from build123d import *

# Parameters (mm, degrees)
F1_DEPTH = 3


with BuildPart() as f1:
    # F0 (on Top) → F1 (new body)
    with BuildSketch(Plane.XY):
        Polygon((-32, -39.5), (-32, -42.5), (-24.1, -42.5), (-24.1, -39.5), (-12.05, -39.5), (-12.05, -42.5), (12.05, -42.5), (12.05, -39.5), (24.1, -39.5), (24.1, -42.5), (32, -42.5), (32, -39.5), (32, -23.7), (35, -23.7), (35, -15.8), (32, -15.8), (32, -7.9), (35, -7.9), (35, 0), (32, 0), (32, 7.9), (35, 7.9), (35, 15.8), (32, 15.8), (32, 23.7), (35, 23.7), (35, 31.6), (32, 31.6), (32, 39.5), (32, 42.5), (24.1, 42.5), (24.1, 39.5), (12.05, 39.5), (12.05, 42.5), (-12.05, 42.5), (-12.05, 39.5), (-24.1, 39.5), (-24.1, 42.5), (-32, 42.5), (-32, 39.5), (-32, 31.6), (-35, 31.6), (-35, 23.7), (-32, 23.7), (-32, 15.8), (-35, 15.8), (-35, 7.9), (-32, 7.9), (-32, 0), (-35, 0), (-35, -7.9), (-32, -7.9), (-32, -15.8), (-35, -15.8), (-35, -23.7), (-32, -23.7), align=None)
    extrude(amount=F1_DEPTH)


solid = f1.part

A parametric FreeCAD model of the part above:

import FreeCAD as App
import Part
import Sketcher

V = App.Vector
Q = App.Units.Quantity

doc = App.newDocument("Part")
body = doc.addObject("PartDesign::Body", "Body")

# Sketch on XY plane
sketch1 = doc.addObject("Sketcher::SketchObject", "Sketch")
body.addObject(sketch1)
sketch1.AttachmentSupport = (doc.XY_Plane, [""])
sketch1.MapMode = "FlatFace"
sketch1.addGeometry([
    Part.LineSegment(V(-32, -42.5, 0), V(-24.1, -42.5, 0)),  # 0
    Part.LineSegment(V(-24.1, -42.5, 0), V(-24.1, -39.5, 0)),  # 1
    Part.LineSegment(V(-24.1, -39.5, 0), V(-12.05, -39.5, 0)),  # 2
    Part.LineSegment(V(-12.05, -39.5, 0), V(-12.05, -42.5, 0)),  # 3
    Part.LineSegment(V(-12.05, -42.5, 0), V(12.05, -42.5, 0)),  # 4
    Part.LineSegment(V(12.05, -42.5, 0), V(12.05, -39.5, 0)),  # 5
    Part.LineSegment(V(12.05, -39.5, 0), V(24.1, -39.5, 0)),  # 6
    Part.LineSegment(V(24.1, -39.5, 0), V(24.1, -42.5, 0)),  # 7
    Part.LineSegment(V(24.1, -42.5, 0), V(32, -42.5, 0)),  # 8
    Part.LineSegment(V(32, -42.5, 0), V(32, -23.7, 0)),  # 9
    Part.LineSegment(V(32, -23.7, 0), V(35, -23.7, 0)),  # 10
    Part.LineSegment(V(35, -23.7, 0), V(35, -15.8, 0)),  # 11
    Part.LineSegment(V(35, -15.8, 0), V(32, -15.8, 0)),  # 12
    Part.LineSegment(V(32, -15.8, 0), V(32, -7.9, 0)),  # 13
    Part.LineSegment(V(32, -7.9, 0), V(35, -7.9, 0)),  # 14
    Part.LineSegment(V(35, -7.9, 0), V(35, 0, 0)),  # 15
    Part.LineSegment(V(35, 0, 0), V(32, 0, 0)),  # 16
    Part.LineSegment(V(32, 0, 0), V(32, 7.9, 0)),  # 17
    Part.LineSegment(V(32, 7.9, 0), V(35, 7.9, 0)),  # 18
    Part.LineSegment(V(35, 7.9, 0), V(35, 15.8, 0)),  # 19
    Part.LineSegment(V(35, 15.8, 0), V(32, 15.8, 0)),  # 20
    Part.LineSegment(V(32, 15.8, 0), V(32, 23.7, 0)),  # 21
    Part.LineSegment(V(32, 23.7, 0), V(35, 23.7, 0)),  # 22
    Part.LineSegment(V(35, 23.7, 0), V(35, 31.6, 0)),  # 23
    Part.LineSegment(V(35, 31.6, 0), V(32, 31.6, 0)),  # 24
    Part.LineSegment(V(32, 31.6, 0), V(32, 42.5, 0)),  # 25
    Part.LineSegment(V(32, 42.5, 0), V(24.1, 42.5, 0)),  # 26
    Part.LineSegment(V(24.1, 42.5, 0), V(24.1, 39.5, 0)),  # 27
    Part.LineSegment(V(24.1, 39.5, 0), V(12.05, 39.5, 0)),  # 28
    Part.LineSegment(V(12.05, 39.5, 0), V(12.05, 42.5, 0)),  # 29
    Part.LineSegment(V(12.05, 42.5, 0), V(-12.05, 42.5, 0)),  # 30
    Part.LineSegment(V(-12.05, 42.5, 0), V(-12.05, 39.5, 0)),  # 31
    Part.LineSegment(V(-12.05, 39.5, 0), V(-24.1, 39.5, 0)),  # 32
    Part.LineSegment(V(-24.1, 39.5, 0), V(-24.1, 42.5, 0)),  # 33
    Part.LineSegment(V(-24.1, 42.5, 0), V(-32, 42.5, 0)),  # 34
    Part.LineSegment(V(-32, 42.5, 0), V(-32, 31.6, 0)),  # 35
    Part.LineSegment(V(-32, 31.6, 0), V(-35, 31.6, 0)),  # 36
    Part.LineSegment(V(-35, 31.6, 0), V(-35, 23.7, 0)),  # 37
    Part.LineSegment(V(-35, 23.7, 0), V(-32, 23.7, 0)),  # 38
    Part.LineSegment(V(-32, 23.7, 0), V(-32, 15.8, 0)),  # 39
    Part.LineSegment(V(-32, 15.8, 0), V(-35, 15.8, 0)),  # 40
    Part.LineSegment(V(-35, 15.8, 0), V(-35, 7.9, 0)),  # 41
    Part.LineSegment(V(-35, 7.9, 0), V(-32, 7.9, 0)),  # 42
    Part.LineSegment(V(-32, 7.9, 0), V(-32, 0, 0)),  # 43
    Part.LineSegment(V(-32, 0, 0), V(-35, 0, 0)),  # 44
    Part.LineSegment(V(-35, 0, 0), V(-35, -7.9, 0)),  # 45
    Part.LineSegment(V(-35, -7.9, 0), V(-32, -7.9, 0)),  # 46
    Part.LineSegment(V(-32, -7.9, 0), V(-32, -15.8, 0)),  # 47
    Part.LineSegment(V(-32, -15.8, 0), V(-35, -15.8, 0)),  # 48
    Part.LineSegment(V(-35, -15.8, 0), V(-35, -23.7, 0)),  # 49
    Part.LineSegment(V(-35, -23.7, 0), V(-32, -23.7, 0)),  # 50
    Part.LineSegment(V(-32, -23.7, 0), V(-32, -42.5, 0)),  # 51
], False)
sketch1.addConstraint([
    Sketcher.Constraint("Coincident", 0, 2, 1, 1),
    Sketcher.Constraint("Coincident", 1, 2, 2, 1),
    Sketcher.Constraint("Coincident", 2, 2, 3, 1),
    Sketcher.Constraint("Coincident", 3, 2, 4, 1),
    Sketcher.Constraint("Coincident", 4, 2, 5, 1),
    Sketcher.Constraint("Coincident", 5, 2, 6, 1),
    Sketcher.Constraint("Coincident", 6, 2, 7, 1),
    Sketcher.Constraint("Coincident", 7, 2, 8, 1),
    Sketcher.Constraint("Coincident", 8, 2, 9, 1),
    Sketcher.Constraint("Coincident", 9, 2, 10, 1),
    Sketcher.Constraint("Coincident", 10, 2, 11, 1),
    Sketcher.Constraint("Coincident", 11, 2, 12, 1),
    Sketcher.Constraint("Coincident", 12, 2, 13, 1),
    Sketcher.Constraint("Coincident", 13, 2, 14, 1),
    Sketcher.Constraint("Coincident", 14, 2, 15, 1),
    Sketcher.Constraint("Coincident", 15, 2, 16, 1),
    Sketcher.Constraint("Coincident", 16, 2, 17, 1),
    Sketcher.Constraint("Coincident", 17, 2, 18, 1),
    Sketcher.Constraint("Coincident", 18, 2, 19, 1),
    Sketcher.Constraint("Coincident", 19, 2, 20, 1),
    Sketcher.Constraint("Coincident", 20, 2, 21, 1),
    Sketcher.Constraint("Coincident", 21, 2, 22, 1),
    Sketcher.Constraint("Coincident", 22, 2, 23, 1),
    Sketcher.Constraint("Coincident", 23, 2, 24, 1),
    Sketcher.Constraint("Coincident", 24, 2, 25, 1),
    Sketcher.Constraint("Coincident", 25, 2, 26, 1),
    Sketcher.Constraint("Coincident", 26, 2, 27, 1),
    Sketcher.Constraint("Coincident", 27, 2, 28, 1),
    Sketcher.Constraint("Coincident", 28, 2, 29, 1),
    Sketcher.Constraint("Coincident", 29, 2, 30, 1),
    Sketcher.Constraint("Coincident", 30, 2, 31, 1),
    Sketcher.Constraint("Coincident", 31, 2, 32, 1),
    Sketcher.Constraint("Coincident", 32, 2, 33, 1),
    Sketcher.Constraint("Coincident", 33, 2, 34, 1),
    Sketcher.Constraint("Coincident", 34, 2, 35, 1),
    Sketcher.Constraint("Coincident", 35, 2, 36, 1),
    Sketcher.Constraint("Coincident", 36, 2, 37, 1),
    Sketcher.Constraint("Coincident", 37, 2, 38, 1),
    Sketcher.Constraint("Coincident", 38, 2, 39, 1),
    Sketcher.Constraint("Coincident", 39, 2, 40, 1),
    Sketcher.Constraint("Coincident", 40, 2, 41, 1),
    Sketcher.Constraint("Coincident", 41, 2, 42, 1),
    Sketcher.Constraint("Coincident", 42, 2, 43, 1),
    Sketcher.Constraint("Coincident", 43, 2, 44, 1),
    Sketcher.Constraint("Coincident", 44, 2, 45, 1),
    Sketcher.Constraint("Coincident", 45, 2, 46, 1),
    Sketcher.Constraint("Coincident", 46, 2, 47, 1),
    Sketcher.Constraint("Coincident", 47, 2, 48, 1),
    Sketcher.Constraint("Coincident", 48, 2, 49, 1),
    Sketcher.Constraint("Coincident", 49, 2, 50, 1),
    Sketcher.Constraint("Coincident", 50, 2, 51, 1),
    Sketcher.Constraint("Coincident", 51, 2, 0, 1),
    Sketcher.Constraint("Horizontal", 0),
    Sketcher.Constraint("Vertical", 1),
    Sketcher.Constraint("Horizontal", 2),
    Sketcher.Constraint("Vertical", 3),
    Sketcher.Constraint("Horizontal", 4),
    Sketcher.Constraint("Vertical", 5),
    Sketcher.Constraint("Horizontal", 6),
    Sketcher.Constraint("Vertical", 7),
    Sketcher.Constraint("Horizontal", 8),
    Sketcher.Constraint("Vertical", 9),
    Sketcher.Constraint("Horizontal", 10),
    Sketcher.Constraint("Vertical", 11),
    Sketcher.Constraint("Horizontal", 12),
    Sketcher.Constraint("Vertical", 13),
    Sketcher.Constraint("Horizontal", 14),
    Sketcher.Constraint("Vertical", 15),
    Sketcher.Constraint("Horizontal", 16),
    Sketcher.Constraint("Vertical", 17),
    Sketcher.Constraint("Horizontal", 18),
    Sketcher.Constraint("Vertical", 19),
    Sketcher.Constraint("Horizontal", 20),
    Sketcher.Constraint("Vertical", 21),
    Sketcher.Constraint("Horizontal", 22),
    Sketcher.Constraint("Vertical", 23),
    Sketcher.Constraint("Horizontal", 24),
    Sketcher.Constraint("Vertical", 25),
    Sketcher.Constraint("Horizontal", 26),
    Sketcher.Constraint("Vertical", 27),
    Sketcher.Constraint("Horizontal", 28),
    Sketcher.Constraint("Vertical", 29),
    Sketcher.Constraint("Horizontal", 30),
    Sketcher.Constraint("Vertical", 31),
    Sketcher.Constraint("Horizontal", 32),
    Sketcher.Constraint("Vertical", 33),
    Sketcher.Constraint("Horizontal", 34),
    Sketcher.Constraint("Vertical", 35),
    Sketcher.Constraint("Horizontal", 36),
    Sketcher.Constraint("Vertical", 37),
    Sketcher.Constraint("Horizontal", 38),
    Sketcher.Constraint("Vertical", 39),
    Sketcher.Constraint("Horizontal", 40),
    Sketcher.Constraint("Vertical", 41),
    Sketcher.Constraint("Horizontal", 42),
    Sketcher.Constraint("Vertical", 43),
    Sketcher.Constraint("Horizontal", 44),
    Sketcher.Constraint("Vertical", 45),
    Sketcher.Constraint("Horizontal", 46),
    Sketcher.Constraint("Vertical", 47),
    Sketcher.Constraint("Horizontal", 48),
    Sketcher.Constraint("Vertical", 49),
    Sketcher.Constraint("Horizontal", 50),
    Sketcher.Constraint("Vertical", 51),
    Sketcher.Constraint("Symmetric", 0, 2, 26, 2, -1, 1),
    Sketcher.Constraint("Symmetric", 2, 2, 28, 2, -1, 1),
    Sketcher.Constraint("Symmetric", 4, 2, 30, 2, -1, 1),
    Sketcher.Constraint("Symmetric", 6, 2, 32, 2, -1, 1),
    Sketcher.Constraint("Symmetric", 8, 2, 34, 2, -1, 1),
    Sketcher.Constraint("Symmetric", 10, 2, 37, 2, -1, 1),
    Sketcher.Constraint("Symmetric", 12, 2, 39, 2, -1, 1),
    Sketcher.Constraint("Symmetric", 14, 2, 41, 2, -1, 1),
    Sketcher.Constraint("Symmetric", 16, 2, 43, 2, -1, 1),
    Sketcher.Constraint("Symmetric", 18, 2, 45, 2, -1, 1),
    Sketcher.Constraint("Symmetric", 20, 2, 47, 2, -1, 1),
    Sketcher.Constraint("Symmetric", 22, 2, 49, 2, -1, 1),
    Sketcher.Constraint("Symmetric", 2, 2, 5, 2, -2),
    Sketcher.Constraint("Symmetric", 0, 2, 7, 2, -2),
    Sketcher.Constraint("Symmetric", 24, 2, 35, 2, -2),
    Sketcher.Constraint("Symmetric", 22, 2, 37, 2, -2),
    Sketcher.Constraint("Symmetric", 20, 2, 39, 2, -2),
    Sketcher.Constraint("Symmetric", 18, 2, 41, 2, -2),
    Sketcher.Constraint("PointOnObject", 15, 2, -1),
    Sketcher.Constraint("Horizontal", 0, 2, 3, 2),
    Sketcher.Constraint("Vertical", 9, 2, 12, 2),
    Sketcher.Constraint("Vertical", 11, 2, 14, 2),
    Sketcher.Constraint("Vertical", 13, 2, 16, 2),
    Sketcher.Constraint("Vertical", 47, 2, 50, 2),
    Sketcher.Constraint("Equal", 50, 1),
    Sketcher.Constraint("Equal", 34, 11),
    Sketcher.Constraint("Equal", 11, 13),
    Sketcher.Constraint("Equal", 13, 15),
    Sketcher.Constraint("Equal", 21, 23),
    Sketcher.Constraint("DistanceX", 10, 1, 10, 2, Q("3 mm")),
    Sketcher.Constraint("DistanceX", 0, 1, 0, 2, Q("7.9 mm")),
    Sketcher.Constraint("DistanceX", 4, 1, 4, 2, Q("24.1 mm")),
    Sketcher.Constraint("DistanceY", 9, 1, 9, 2, Q("18.8 mm")),
    Sketcher.Constraint("DistanceX", -1, 1, 8, 2, Q("32 mm")),
])
pad1 = doc.addObject("PartDesign::Pad", "Pad")
body.addObject(pad1)
pad1.Profile = sketch1
pad1.Length = 3

doc.recompute()
